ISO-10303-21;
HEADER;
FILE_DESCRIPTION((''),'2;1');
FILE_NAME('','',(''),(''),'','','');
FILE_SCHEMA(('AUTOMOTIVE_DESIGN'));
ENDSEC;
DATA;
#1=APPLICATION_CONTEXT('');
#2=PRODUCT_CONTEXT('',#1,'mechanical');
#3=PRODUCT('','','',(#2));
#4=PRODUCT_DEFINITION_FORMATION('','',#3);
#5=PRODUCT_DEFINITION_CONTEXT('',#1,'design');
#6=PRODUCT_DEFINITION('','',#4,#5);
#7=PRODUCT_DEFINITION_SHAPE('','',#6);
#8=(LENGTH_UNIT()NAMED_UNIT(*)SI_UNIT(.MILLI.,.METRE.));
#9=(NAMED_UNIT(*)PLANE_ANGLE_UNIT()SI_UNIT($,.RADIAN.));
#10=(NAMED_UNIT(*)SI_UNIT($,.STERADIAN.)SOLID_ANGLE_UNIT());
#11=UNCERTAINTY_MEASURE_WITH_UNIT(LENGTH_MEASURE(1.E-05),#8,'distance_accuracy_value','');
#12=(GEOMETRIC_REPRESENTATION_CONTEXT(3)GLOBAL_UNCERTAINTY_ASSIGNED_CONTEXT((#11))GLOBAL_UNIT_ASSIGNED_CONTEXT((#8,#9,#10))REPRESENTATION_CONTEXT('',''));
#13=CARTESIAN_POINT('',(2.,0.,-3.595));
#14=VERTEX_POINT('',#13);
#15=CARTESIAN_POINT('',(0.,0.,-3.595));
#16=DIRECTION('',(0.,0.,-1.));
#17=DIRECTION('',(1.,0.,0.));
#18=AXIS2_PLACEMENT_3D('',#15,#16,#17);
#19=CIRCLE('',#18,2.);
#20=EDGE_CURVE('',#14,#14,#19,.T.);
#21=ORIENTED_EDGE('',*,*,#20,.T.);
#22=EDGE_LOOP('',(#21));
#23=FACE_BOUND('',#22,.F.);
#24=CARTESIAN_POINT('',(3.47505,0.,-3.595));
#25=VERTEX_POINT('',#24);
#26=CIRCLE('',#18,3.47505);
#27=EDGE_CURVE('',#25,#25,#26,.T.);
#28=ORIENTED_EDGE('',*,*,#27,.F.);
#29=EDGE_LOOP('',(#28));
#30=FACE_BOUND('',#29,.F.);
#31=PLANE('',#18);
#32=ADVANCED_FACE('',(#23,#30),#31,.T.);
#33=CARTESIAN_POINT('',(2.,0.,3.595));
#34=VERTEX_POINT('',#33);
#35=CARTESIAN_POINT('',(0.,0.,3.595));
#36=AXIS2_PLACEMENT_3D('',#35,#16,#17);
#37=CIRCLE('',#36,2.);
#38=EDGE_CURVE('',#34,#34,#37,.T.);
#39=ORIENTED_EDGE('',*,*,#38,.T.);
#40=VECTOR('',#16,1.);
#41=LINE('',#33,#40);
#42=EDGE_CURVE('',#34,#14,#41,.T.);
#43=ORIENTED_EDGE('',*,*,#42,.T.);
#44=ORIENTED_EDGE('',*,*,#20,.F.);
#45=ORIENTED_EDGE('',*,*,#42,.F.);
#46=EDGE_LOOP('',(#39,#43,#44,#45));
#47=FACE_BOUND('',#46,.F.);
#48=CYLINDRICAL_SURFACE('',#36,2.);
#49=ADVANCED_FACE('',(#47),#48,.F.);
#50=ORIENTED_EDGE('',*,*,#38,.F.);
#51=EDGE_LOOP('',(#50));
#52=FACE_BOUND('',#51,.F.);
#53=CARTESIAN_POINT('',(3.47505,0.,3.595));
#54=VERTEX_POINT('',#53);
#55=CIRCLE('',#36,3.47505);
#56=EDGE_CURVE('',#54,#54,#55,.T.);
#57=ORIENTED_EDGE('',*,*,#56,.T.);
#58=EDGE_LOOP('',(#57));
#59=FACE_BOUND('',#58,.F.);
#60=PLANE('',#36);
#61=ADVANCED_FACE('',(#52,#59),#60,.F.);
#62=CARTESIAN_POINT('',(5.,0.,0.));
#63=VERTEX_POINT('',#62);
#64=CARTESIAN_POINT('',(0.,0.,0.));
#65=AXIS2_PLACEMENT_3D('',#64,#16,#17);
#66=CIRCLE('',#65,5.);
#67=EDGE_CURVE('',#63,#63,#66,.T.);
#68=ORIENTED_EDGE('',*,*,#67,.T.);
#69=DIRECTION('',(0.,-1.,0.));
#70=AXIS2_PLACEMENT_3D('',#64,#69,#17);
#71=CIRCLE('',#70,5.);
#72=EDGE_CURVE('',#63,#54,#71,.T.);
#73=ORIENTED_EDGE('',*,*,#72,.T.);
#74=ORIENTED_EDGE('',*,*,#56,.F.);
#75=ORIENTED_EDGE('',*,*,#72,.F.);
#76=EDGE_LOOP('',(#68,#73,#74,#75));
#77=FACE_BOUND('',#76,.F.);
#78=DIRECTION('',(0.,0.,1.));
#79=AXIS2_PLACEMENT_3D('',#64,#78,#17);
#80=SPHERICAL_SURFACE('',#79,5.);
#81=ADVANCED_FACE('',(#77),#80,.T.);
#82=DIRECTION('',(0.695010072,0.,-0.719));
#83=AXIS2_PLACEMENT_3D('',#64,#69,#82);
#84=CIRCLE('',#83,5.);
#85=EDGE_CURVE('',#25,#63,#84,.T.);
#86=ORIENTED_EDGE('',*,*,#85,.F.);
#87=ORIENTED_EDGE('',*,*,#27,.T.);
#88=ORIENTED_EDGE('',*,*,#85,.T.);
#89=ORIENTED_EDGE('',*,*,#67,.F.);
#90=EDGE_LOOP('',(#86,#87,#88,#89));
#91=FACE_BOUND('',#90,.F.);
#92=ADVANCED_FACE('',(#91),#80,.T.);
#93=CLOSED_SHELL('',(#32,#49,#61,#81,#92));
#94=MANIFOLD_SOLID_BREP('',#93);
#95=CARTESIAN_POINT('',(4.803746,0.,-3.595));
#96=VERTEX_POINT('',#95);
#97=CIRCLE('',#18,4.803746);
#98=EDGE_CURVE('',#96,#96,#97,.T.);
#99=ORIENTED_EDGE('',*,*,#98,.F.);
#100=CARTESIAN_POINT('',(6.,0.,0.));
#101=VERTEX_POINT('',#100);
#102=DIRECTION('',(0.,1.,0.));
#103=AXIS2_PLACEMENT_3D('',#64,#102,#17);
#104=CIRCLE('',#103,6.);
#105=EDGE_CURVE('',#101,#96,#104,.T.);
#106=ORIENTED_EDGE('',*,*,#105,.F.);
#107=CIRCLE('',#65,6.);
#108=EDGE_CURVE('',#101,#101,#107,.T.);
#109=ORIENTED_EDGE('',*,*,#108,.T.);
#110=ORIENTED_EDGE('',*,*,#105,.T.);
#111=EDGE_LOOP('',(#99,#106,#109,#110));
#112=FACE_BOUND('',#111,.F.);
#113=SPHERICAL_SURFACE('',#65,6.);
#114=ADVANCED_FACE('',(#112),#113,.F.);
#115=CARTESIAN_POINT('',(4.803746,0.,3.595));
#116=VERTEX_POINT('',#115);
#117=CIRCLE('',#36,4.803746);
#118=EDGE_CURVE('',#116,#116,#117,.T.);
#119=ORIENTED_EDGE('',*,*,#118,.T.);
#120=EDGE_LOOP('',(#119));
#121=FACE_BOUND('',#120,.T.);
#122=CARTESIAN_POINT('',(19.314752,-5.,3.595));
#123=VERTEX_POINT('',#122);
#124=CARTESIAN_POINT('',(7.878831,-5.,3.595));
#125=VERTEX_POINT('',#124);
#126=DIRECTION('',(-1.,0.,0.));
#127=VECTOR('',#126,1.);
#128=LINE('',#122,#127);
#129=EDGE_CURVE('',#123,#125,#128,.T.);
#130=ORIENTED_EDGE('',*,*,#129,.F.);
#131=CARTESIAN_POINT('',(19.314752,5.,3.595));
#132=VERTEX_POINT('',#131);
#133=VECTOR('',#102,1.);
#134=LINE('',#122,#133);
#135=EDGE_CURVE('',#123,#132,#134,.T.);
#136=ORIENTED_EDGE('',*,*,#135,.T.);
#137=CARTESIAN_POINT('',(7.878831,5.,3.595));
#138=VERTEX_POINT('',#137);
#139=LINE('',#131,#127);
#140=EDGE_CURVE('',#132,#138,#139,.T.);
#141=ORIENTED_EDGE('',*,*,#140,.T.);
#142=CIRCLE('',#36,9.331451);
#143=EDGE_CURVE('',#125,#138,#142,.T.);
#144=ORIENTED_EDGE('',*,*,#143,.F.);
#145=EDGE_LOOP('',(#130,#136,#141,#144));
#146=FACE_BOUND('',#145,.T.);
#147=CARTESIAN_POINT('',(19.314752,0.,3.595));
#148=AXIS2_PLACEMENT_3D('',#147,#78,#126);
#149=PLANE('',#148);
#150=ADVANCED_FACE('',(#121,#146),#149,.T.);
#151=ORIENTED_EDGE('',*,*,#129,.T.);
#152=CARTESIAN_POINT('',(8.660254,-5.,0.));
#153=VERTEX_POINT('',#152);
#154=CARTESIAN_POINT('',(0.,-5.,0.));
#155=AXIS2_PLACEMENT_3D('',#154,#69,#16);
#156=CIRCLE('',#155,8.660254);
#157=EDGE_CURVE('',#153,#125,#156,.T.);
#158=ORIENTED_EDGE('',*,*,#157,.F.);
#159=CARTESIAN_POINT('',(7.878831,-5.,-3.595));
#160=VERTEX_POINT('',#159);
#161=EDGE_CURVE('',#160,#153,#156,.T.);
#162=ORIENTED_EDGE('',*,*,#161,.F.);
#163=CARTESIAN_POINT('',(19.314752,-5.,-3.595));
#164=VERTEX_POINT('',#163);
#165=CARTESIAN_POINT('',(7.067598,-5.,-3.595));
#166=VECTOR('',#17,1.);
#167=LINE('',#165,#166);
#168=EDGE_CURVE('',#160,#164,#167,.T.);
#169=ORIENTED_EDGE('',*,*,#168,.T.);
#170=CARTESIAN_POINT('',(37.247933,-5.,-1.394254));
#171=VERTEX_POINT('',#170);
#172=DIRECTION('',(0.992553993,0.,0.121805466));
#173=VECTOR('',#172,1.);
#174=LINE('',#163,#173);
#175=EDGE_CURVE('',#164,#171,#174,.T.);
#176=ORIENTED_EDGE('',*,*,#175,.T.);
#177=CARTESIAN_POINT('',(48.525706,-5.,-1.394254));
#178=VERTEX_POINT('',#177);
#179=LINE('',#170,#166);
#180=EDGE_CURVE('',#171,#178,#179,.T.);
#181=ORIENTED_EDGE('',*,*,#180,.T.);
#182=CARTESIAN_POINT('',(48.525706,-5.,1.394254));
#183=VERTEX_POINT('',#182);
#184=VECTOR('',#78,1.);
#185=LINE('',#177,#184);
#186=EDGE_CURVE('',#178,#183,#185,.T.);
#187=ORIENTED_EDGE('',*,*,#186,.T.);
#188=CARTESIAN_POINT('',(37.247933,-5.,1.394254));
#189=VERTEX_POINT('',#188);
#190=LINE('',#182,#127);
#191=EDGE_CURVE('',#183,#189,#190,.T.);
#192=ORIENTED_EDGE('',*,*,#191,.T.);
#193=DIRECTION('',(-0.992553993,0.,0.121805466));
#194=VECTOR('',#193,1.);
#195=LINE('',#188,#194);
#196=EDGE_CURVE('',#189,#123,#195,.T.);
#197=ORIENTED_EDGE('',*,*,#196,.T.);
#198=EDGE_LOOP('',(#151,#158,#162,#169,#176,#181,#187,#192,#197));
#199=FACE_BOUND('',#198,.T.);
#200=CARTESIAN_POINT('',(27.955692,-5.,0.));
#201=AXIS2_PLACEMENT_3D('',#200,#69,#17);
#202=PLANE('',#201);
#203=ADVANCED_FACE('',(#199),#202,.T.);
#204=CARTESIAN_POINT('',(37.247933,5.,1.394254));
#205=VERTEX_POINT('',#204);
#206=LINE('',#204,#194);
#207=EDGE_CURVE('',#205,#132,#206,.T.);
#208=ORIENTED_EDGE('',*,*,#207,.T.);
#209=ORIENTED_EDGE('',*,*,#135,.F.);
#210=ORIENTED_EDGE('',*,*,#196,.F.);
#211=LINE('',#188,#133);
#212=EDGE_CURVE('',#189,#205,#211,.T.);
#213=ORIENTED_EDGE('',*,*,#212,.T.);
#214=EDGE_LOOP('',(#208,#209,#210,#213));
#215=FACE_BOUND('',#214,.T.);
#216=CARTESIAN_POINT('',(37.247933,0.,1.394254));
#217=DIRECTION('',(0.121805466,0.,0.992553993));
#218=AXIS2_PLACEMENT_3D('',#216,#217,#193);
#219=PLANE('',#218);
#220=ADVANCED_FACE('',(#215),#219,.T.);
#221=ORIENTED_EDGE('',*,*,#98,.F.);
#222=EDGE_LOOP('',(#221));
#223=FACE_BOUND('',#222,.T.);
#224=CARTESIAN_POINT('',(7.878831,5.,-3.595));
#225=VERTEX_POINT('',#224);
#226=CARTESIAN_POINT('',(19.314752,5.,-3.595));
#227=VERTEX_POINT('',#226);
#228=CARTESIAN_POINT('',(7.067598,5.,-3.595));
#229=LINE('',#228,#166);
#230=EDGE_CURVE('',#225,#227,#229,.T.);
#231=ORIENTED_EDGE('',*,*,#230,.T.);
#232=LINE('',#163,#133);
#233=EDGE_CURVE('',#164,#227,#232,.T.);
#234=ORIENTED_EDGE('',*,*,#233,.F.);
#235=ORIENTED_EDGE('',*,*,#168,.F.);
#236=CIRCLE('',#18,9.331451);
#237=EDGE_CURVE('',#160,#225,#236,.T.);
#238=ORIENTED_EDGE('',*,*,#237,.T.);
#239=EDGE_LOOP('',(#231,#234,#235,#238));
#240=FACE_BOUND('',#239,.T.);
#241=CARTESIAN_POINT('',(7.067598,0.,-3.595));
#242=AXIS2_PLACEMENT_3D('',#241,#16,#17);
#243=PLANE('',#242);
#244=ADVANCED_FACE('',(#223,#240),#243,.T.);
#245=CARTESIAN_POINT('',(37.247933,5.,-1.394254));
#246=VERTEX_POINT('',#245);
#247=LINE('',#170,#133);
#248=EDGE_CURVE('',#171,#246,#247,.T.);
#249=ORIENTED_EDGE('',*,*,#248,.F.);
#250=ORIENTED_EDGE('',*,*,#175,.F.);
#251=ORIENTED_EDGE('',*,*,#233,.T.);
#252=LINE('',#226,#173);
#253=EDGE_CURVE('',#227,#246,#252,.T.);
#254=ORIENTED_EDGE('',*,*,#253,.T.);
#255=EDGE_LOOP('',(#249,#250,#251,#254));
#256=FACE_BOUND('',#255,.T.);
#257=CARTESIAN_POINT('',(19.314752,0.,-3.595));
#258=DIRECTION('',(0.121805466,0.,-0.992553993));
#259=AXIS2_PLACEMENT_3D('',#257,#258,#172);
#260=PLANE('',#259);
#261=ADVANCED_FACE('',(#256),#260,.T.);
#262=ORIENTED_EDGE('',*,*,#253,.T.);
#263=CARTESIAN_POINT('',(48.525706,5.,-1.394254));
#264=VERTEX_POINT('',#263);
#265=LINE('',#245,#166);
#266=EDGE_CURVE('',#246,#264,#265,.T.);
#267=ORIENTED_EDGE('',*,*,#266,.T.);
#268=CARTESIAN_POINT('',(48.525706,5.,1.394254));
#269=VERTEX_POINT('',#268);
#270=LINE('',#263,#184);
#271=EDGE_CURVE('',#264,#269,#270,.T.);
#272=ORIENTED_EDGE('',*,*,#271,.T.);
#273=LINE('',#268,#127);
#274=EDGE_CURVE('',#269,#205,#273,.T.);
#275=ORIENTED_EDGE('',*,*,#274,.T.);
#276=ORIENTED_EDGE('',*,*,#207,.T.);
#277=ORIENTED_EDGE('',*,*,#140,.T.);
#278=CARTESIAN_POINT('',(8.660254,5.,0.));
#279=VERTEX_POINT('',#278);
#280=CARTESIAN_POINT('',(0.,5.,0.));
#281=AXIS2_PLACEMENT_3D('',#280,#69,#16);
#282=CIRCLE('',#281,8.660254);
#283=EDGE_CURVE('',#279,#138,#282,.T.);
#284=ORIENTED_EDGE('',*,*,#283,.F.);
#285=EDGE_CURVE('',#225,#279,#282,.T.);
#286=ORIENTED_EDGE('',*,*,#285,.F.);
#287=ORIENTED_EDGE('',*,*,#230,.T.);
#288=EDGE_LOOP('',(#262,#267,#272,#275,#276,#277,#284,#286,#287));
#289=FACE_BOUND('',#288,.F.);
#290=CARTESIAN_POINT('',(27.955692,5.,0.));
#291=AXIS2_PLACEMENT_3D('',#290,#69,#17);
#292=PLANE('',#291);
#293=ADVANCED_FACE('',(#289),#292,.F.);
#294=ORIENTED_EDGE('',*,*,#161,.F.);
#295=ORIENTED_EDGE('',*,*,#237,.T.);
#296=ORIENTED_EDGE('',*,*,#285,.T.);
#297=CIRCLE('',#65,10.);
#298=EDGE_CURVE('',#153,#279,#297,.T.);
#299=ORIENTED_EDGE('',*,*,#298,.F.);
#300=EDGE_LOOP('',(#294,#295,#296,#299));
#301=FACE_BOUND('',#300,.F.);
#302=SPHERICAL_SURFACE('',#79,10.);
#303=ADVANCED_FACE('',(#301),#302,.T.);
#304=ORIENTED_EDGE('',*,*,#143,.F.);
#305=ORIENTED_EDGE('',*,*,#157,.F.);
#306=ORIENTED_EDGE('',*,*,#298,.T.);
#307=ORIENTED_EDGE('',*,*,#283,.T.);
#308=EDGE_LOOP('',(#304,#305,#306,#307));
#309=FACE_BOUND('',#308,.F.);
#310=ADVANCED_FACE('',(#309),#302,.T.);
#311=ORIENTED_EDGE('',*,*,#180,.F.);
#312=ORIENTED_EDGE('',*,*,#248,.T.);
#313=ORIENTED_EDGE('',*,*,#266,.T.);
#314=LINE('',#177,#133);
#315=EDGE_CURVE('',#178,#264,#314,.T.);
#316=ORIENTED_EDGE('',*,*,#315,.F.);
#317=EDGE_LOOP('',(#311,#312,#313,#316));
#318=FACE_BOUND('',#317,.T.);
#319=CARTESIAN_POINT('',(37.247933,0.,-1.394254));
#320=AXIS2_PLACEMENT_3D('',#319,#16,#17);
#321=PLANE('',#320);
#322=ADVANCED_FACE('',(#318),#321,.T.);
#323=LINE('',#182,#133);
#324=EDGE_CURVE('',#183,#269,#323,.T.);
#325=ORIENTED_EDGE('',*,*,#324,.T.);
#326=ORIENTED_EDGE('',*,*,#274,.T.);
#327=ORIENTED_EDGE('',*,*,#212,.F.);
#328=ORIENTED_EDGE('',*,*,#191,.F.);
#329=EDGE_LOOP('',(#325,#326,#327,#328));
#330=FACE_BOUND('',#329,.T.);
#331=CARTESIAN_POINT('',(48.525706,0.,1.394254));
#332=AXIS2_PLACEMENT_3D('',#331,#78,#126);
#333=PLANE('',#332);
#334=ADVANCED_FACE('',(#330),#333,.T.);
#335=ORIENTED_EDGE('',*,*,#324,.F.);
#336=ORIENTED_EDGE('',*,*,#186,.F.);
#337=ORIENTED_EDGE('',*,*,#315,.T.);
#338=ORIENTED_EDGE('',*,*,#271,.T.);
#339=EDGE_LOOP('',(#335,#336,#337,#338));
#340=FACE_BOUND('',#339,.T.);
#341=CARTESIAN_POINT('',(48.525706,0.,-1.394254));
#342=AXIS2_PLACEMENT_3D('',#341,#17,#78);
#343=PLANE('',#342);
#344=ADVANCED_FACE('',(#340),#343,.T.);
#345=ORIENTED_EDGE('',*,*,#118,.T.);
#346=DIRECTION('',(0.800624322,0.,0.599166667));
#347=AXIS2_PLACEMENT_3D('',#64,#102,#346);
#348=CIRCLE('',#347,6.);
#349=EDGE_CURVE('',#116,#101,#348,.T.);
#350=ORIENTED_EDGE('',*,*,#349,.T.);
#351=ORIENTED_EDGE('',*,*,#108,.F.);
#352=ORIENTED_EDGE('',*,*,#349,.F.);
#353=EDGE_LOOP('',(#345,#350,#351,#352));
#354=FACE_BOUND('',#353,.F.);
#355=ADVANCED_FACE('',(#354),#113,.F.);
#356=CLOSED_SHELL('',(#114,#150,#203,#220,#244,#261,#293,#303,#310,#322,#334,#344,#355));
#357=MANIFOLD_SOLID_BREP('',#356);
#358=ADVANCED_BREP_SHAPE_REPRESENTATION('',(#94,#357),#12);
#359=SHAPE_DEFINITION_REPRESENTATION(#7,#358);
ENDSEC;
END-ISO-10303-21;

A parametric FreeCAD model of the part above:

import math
import FreeCAD as App
import Part
import Sketcher
Q = App.Units.Quantity

doc = App.newDocument("Part")
body = doc.addObject("PartDesign::Body", "Body")

# Sketch on XZ plane
sketch1 = body.newObject("Sketcher::SketchObject", "Sketch")
sketch1.AttachmentSupport = (doc.getObject("XZ_Plane"), [""])
sketch1.MapMode = "FlatFace"
sketch1.addGeometry([
    Part.ArcOfCircle(Part.Circle(App.Vector(0, 0, 0), App.Vector(0, 0, 1), 5), math.radians(-46), math.radians(0)),  # 0
    Part.ArcOfCircle(Part.Circle(App.Vector(0, 0, 0), App.Vector(0, 0, 1), 5), math.radians(0), math.radians(46)),  # 1
    Part.LineSegment(App.Vector(3.5, 3.6, 0), App.Vector(2, 3.6, 0)),  # 2
    Part.LineSegment(App.Vector(2, 3.6, 0), App.Vector(2, -3.6, 0)),  # 3
    Part.LineSegment(App.Vector(2, -3.6, 0), App.Vector(3.5, -3.6, 0)),  # 4
], False)
sketch1.addConstraint([
    Sketcher.Constraint("Tangent", 0, 2, 1, 1),
    Sketcher.Constraint("Coincident", 1, 2, 2, 1),
    Sketcher.Constraint("Coincident", 2, 2, 3, 1),
    Sketcher.Constraint("Coincident", 3, 2, 4, 1),
    Sketcher.Constraint("Coincident", 4, 2, 0, 1),
    Sketcher.Constraint("Horizontal", 2),
    Sketcher.Constraint("Vertical", 3),
    Sketcher.Constraint("Horizontal", 4),
    Sketcher.Constraint("Coincident", 0, 3, -1, 1),
    Sketcher.Constraint("Equal", 0, 1),
    Sketcher.Constraint("PointOnObject", 0, 2, -1),
    Sketcher.Constraint("Vertical", 1, 2, 4, 2),
    Sketcher.Constraint("Radius", 0, Q("5 mm")),
    Sketcher.Constraint("DistanceX", -1, 1, 2, 2, Q("2 mm")),
    Sketcher.Constraint("DistanceY", 3, 2, 3, 1, Q("7.19 mm")),
])
revolution = body.newObject("PartDesign::Revolution", "Revolution")
revolution.Profile = sketch1
revolution.ReferenceAxis = (sketch1, ["V_Axis"])
revolution.Angle = 360
body2 = doc.addObject("PartDesign::Body", "Body001")

# Sketch on XZ plane
sketch2 = body2.newObject("Sketcher::SketchObject", "Sketch001")
sketch2.AttachmentSupport = (doc.getObject("XZ_Plane001"), [""])
sketch2.MapMode = "FlatFace"
sketch2.addGeometry([
    Part.ArcOfCircle(Part.Circle(App.Vector(0, 0, 0), App.Vector(0, 0, 1), 10), math.radians(0), math.radians(21)),  # 0
    Part.LineSegment(App.Vector(9.3, 3.6, 0), App.Vector(4.8, 3.6, 0)),  # 1
    Part.ArcOfCircle(Part.Circle(App.Vector(0, 0, 0), App.Vector(0, 0, 1), 6), math.radians(0), math.radians(37)),  # 2
    Part.ArcOfCircle(Part.Circle(App.Vector(0, 0, 0), App.Vector(0, 0, 1), 6), math.radians(-37), math.radians(0)),  # 3
    Part.LineSegment(App.Vector(4.8, -3.6, 0), App.Vector(9.3, -3.6, 0)),  # 4
    Part.ArcOfCircle(Part.Circle(App.Vector(0, 0, 0), App.Vector(0, 0, 1), 10), math.radians(-21), math.radians(0)),  # 5
], False)
sketch2.addConstraint([
    Sketcher.Constraint("Coincident", 0, 2, 1, 1),
    Sketcher.Constraint("Coincident", 1, 2, 2, 2),
    Sketcher.Constraint("Tangent", 2, 1, 3, 2),
    Sketcher.Constraint("Coincident", 3, 1, 4, 1),
    Sketcher.Constraint("Coincident", 4, 2, 5, 1),
    Sketcher.Constraint("Tangent", 5, 2, 0, 1),
    Sketcher.Constraint("Horizontal", 1),
    Sketcher.Constraint("Horizontal", 4),
    Sketcher.Constraint("Coincident", 0, 3, -1, 1),
    Sketcher.Constraint("Coincident", 2, 3, -1, 1),
    Sketcher.Constraint("Equal", 2, 3),
    Sketcher.Constraint("Equal", 0, 5),
    Sketcher.Constraint("PointOnObject", 2, 1, -1),
    Sketcher.Constraint("PointOnObject", 5, 2, -1),
    Sketcher.Constraint("Vertical", 1, 2, 3, 1),
    Sketcher.Constraint("Radius", 0, Q("10 mm")),
    Sketcher.Constraint("Radius", 2, Q("6 mm")),
    Sketcher.Constraint("DistanceY", 4, 2, 0, 2, Q("7.19 mm")),
])
revolution2 = body2.newObject("PartDesign::Revolution", "Revolution001")
revolution2.Profile = sketch2
revolution2.ReferenceAxis = (sketch2, ["V_Axis"])
revolution2.Angle = 360

# Sketch on XZ plane
sketch3 = body2.newObject("Sketcher::SketchObject", "Sketch002")
sketch3.AttachmentSupport = (doc.getObject("XZ_Plane001"), [""])
sketch3.MapMode = "FlatFace"
sketch3.addGeometry([
    Part.LineSegment(App.Vector(19.3, 3.6, 0), App.Vector(7.1, 3.6, 0)),  # 0
    Part.LineSegment(App.Vector(7.1, 3.6, 0), App.Vector(7.1, -3.6, 0)),  # 1
    Part.LineSegment(App.Vector(7.1, -3.6, 0), App.Vector(19.3, -3.6, 0)),  # 2
    Part.LineSegment(App.Vector(19.3, -3.6, 0), App.Vector(37.2, -1.4, 0)),  # 3
    Part.LineSegment(App.Vector(37.2, -1.4, 0), App.Vector(48.5, -1.4, 0)),  # 4
    Part.LineSegment(App.Vector(48.5, -1.4, 0), App.Vector(48.5, 1.4, 0)),  # 5
    Part.LineSegment(App.Vector(48.5, 1.4, 0), App.Vector(37.2, 1.4, 0)),  # 6
    Part.LineSegment(App.Vector(37.2, 1.4, 0), App.Vector(19.3, 3.6, 0)),  # 7
], False)
sketch3.addConstraint([
    Sketcher.Constraint("Coincident", 0, 2, 1, 1),
    Sketcher.Constraint("Coincident", 1, 2, 2, 1),
    Sketcher.Constraint("Coincident", 2, 2, 3, 1),
    Sketcher.Constraint("Coincident", 3, 2, 4, 1),
    Sketcher.Constraint("Coincident", 4, 2, 5, 1),
    Sketcher.Constraint("Coincident", 5, 2, 6, 1),
    Sketcher.Constraint("Coincident", 6, 2, 7, 1),
    Sketcher.Constraint("Coincident", 7, 2, 0, 1),
    Sketcher.Constraint("Horizontal", 0),
    Sketcher.Constraint("Vertical", 1),
    Sketcher.Constraint("Horizontal", 2),
    Sketcher.Constraint("Horizontal", 4),
    Sketcher.Constraint("Vertical", 5),
    Sketcher.Constraint("Horizontal", 6),
    Sketcher.Constraint("Symmetric", 3, 2, 6, 2, -1),
    Sketcher.Constraint("Symmetric", 2, 2, 7, 2, -1),
    Sketcher.Constraint("DistanceY", 1, 2, 1, 1, Q("7.19 mm")),
    Sketcher.Constraint("DistanceX", -1, 1, 0, 2, Q("7.067598 mm")),
    Sketcher.Constraint("DistanceX", 0, 2, 0, 1, Q("12.247154 mm")),
    Sketcher.Constraint("DistanceX", 4, 1, 4, 2, Q("11.277772 mm")),
    Sketcher.Constraint("DistanceY", 5, 1, 5, 2, Q("2.788507 mm")),
    Sketcher.Constraint("DistanceX", 2, 2, 3, 2, Q("17.933182 mm")),
])
pad1 = body2.newObject("PartDesign::Pad", "Pad")
pad1.Profile = sketch3
pad1.Type = "TwoLengths"
pad1.Length = 5
pad1.Length2 = 5

doc.recompute()
